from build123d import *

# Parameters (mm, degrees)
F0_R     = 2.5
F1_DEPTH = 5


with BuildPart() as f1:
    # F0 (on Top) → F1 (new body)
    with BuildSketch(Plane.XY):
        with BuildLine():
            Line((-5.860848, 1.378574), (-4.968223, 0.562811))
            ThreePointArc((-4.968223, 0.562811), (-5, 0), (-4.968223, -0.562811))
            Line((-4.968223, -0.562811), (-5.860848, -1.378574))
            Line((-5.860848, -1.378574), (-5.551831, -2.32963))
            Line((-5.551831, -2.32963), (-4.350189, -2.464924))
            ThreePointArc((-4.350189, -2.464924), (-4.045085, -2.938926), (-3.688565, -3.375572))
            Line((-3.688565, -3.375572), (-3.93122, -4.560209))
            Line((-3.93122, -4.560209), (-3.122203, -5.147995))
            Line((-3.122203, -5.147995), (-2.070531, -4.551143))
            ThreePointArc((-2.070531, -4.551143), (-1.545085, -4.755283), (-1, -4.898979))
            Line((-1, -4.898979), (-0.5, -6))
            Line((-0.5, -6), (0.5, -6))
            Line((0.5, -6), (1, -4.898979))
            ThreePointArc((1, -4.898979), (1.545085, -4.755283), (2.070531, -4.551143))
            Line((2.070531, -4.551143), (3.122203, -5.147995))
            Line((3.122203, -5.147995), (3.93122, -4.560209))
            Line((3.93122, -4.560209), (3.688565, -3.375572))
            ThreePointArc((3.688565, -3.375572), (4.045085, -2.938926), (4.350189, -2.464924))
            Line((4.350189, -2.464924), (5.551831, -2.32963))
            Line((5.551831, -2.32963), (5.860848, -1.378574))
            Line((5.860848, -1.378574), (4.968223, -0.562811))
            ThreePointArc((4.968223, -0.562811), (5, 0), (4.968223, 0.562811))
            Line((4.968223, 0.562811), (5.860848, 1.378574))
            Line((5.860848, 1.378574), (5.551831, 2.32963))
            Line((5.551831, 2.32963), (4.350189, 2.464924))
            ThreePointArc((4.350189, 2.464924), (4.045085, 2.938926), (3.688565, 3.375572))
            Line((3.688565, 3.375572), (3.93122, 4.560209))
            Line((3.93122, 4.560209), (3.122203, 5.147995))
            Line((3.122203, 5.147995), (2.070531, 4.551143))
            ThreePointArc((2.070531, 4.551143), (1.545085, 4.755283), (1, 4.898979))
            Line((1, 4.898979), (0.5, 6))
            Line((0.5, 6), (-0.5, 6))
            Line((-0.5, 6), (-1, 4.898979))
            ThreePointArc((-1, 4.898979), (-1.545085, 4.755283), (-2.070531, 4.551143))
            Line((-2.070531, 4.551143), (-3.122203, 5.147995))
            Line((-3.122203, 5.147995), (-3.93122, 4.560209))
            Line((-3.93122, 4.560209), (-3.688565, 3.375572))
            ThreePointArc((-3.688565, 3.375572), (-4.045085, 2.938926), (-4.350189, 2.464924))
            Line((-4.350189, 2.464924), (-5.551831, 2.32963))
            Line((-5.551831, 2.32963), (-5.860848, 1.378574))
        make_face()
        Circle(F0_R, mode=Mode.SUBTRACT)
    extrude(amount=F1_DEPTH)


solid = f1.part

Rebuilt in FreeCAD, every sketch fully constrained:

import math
import FreeCAD as App
import Part
import Sketcher

V = App.Vector
Q = App.Units.Quantity

doc = App.newDocument("Part")
body = doc.addObject("PartDesign::Body", "Body")

# Sketch on XY plane
sketch1 = doc.addObject("Sketcher::SketchObject", "Sketch")
body.addObject(sketch1)
sketch1.AttachmentSupport = (doc.XY_Plane, [""])
sketch1.MapMode = "FlatFace"
sketch1.addGeometry(Part.LineSegment(V(-5.860848, 1.378574, 0), V(-4.968223, 0.562811, 0)), False)
sketch1.addGeometry(Part.ArcOfCircle(Part.Circle(V(-0.000063, 0, 0), V(0, 0, 1), 4.999937), math.radians(173.536882), math.radians(186.463118)), False)
sketch1.addGeometry(Part.LineSegment(V(-4.968223, -0.562811, 0), V(-5.860848, -1.378574, 0)), False)
sketch1.addGeometry(Part.LineSegment(V(-5.860848, -1.378574, 0), V(-5.551831, -2.32963, 0)), False)
sketch1.addGeometry(Part.LineSegment(V(-5.551831, -2.32963, 0), V(-4.350189, -2.464924, 0)), False)
sketch1.addGeometry(Part.ArcOfCircle(Part.Circle(V(-0.000029, -0.000023, 0), V(0, 0, 1), 4.999963), math.radians(-150.463108), math.radians(-137.536934)), False)
sketch1.addGeometry(Part.LineSegment(V(-3.688565, -3.375572, 0), V(-3.93122, -4.560209, 0)), False)
sketch1.addGeometry(Part.LineSegment(V(-3.93122, -4.560209, 0), V(-3.122203, -5.147995, 0)), False)
sketch1.addGeometry(Part.LineSegment(V(-3.122203, -5.147995, 0), V(-2.070531, -4.551143, 0)), False)
sketch1.addGeometry(Part.ArcOfCircle(Part.Circle(V(-0.000031, -0.000086, 0), V(0, 0, 1), 4.999909), math.radians(-114.46313), math.radians(-101.536812)), False)
sketch1.addGeometry(Part.LineSegment(V(-1, -4.898979, 0), V(-0.5, -6, 0)), False)
sketch1.addGeometry(Part.LineSegment(V(-0.5, -6, 0), V(0.5, -6, 0)), False)
sketch1.addGeometry(Part.LineSegment(V(0.5, -6, 0), V(1, -4.898979, 0)), False)
sketch1.addGeometry(Part.ArcOfCircle(Part.Circle(V(0.000031, -0.000086, 0), V(0, 0, 1), 4.999909), math.radians(-78.463188), math.radians(-65.53687)), False)
sketch1.addGeometry(Part.LineSegment(V(2.070531, -4.551143, 0), V(3.122203, -5.147995, 0)), False)
sketch1.addGeometry(Part.LineSegment(V(3.122203, -5.147995, 0), V(3.93122, -4.560209, 0)), False)
sketch1.addGeometry(Part.LineSegment(V(3.93122, -4.560209, 0), V(3.688565, -3.375572, 0)), False)
sketch1.addGeometry(Part.ArcOfCircle(Part.Circle(V(0.000029, -0.000023, 0), V(0, 0, 1), 4.999963), math.radians(-42.463066), math.radians(-29.536892)), False)
sketch1.addGeometry(Part.LineSegment(V(4.350189, -2.464924, 0), V(5.551831, -2.32963, 0)), False)
sketch1.addGeometry(Part.LineSegment(V(5.551831, -2.32963, 0), V(5.860848, -1.378574, 0)), False)
sketch1.addGeometry(Part.LineSegment(V(5.860848, -1.378574, 0), V(4.968223, -0.562811, 0)), False)
sketch1.addGeometry(Part.ArcOfCircle(Part.Circle(V(0.000063, 0, 0), V(0, 0, 1), 4.999937), math.radians(-6.463118), math.radians(6.463118)), False)
sketch1.addGeometry(Part.LineSegment(V(4.968223, 0.562811, 0), V(5.860848, 1.378574, 0)), False)
sketch1.addGeometry(Part.LineSegment(V(5.860848, 1.378574, 0), V(5.551831, 2.32963, 0)), False)
sketch1.addGeometry(Part.LineSegment(V(5.551831, 2.32963, 0), V(4.350189, 2.464924, 0)), False)
sketch1.addGeometry(Part.ArcOfCircle(Part.Circle(V(0.000029, 0.000023, 0), V(0, 0, 1), 4.999963), math.radians(29.536892), math.radians(42.463066)), False)
sketch1.addGeometry(Part.LineSegment(V(3.688565, 3.375572, 0), V(3.93122, 4.560209, 0)), False)
sketch1.addGeometry(Part.LineSegment(V(3.93122, 4.560209, 0), V(3.122203, 5.147995, 0)), False)
sketch1.addGeometry(Part.LineSegment(V(3.122203, 5.147995, 0), V(2.070531, 4.551143, 0)), False)
sketch1.addGeometry(Part.ArcOfCircle(Part.Circle(V(0.000031, 0.000086, 0), V(0, 0, 1), 4.999909), math.radians(65.53687), math.radians(78.463188)), False)
sketch1.addGeometry(Part.LineSegment(V(1, 4.898979, 0), V(0.5, 6, 0)), False)
sketch1.addGeometry(Part.LineSegment(V(0.5, 6, 0), V(-0.5, 6, 0)), False)
sketch1.addGeometry(Part.LineSegment(V(-0.5, 6, 0), V(-1, 4.898979, 0)), False)
sketch1.addGeometry(Part.ArcOfCircle(Part.Circle(V(-0.000031, 0.000086, 0), V(0, 0, 1), 4.999909), math.radians(101.536812), math.radians(114.46313)), False)
sketch1.addGeometry(Part.LineSegment(V(-2.070531, 4.551143, 0), V(-3.122203, 5.147995, 0)), False)
sketch1.addGeometry(Part.LineSegment(V(-3.122203, 5.147995, 0), V(-3.93122, 4.560209, 0)), False)
sketch1.addGeometry(Part.LineSegment(V(-3.93122, 4.560209, 0), V(-3.688565, 3.375572, 0)), False)
sketch1.addGeometry(Part.ArcOfCircle(Part.Circle(V(-0.000029, 0.000023, 0), V(0, 0, 1), 4.999963), math.radians(137.536934), math.radians(150.463108)), False)
sketch1.addGeometry(Part.LineSegment(V(-4.350189, 2.464924, 0), V(-5.551831, 2.32963, 0)), False)
sketch1.addGeometry(Part.LineSegment(V(-5.551831, 2.32963, 0), V(-5.860848, 1.378574, 0)), False)
sketch1.addGeometry(Part.Circle(V(0, 0, 0), V(0, 0, 1), 2.5), False)
sketch1.addConstraint(Sketcher.Constraint("Coincident", 0, 2, 1, 1))
sketch1.addConstraint(Sketcher.Constraint("Coincident", 1, 2, 2, 1))
sketch1.addConstraint(Sketcher.Constraint("Coincident", 2, 2, 3, 1))
sketch1.addConstraint(Sketcher.Constraint("Coincident", 3, 2, 4, 1))
sketch1.addConstraint(Sketcher.Constraint("Coincident", 4, 2, 5, 1))
sketch1.addConstraint(Sketcher.Constraint("Coincident", 5, 2, 6, 1))
sketch1.addConstraint(Sketcher.Constraint("Coincident", 6, 2, 7, 1))
sketch1.addConstraint(Sketcher.Constraint("Coincident", 7, 2, 8, 1))
sketch1.addConstraint(Sketcher.Constraint("Coincident", 8, 2, 9, 1))
sketch1.addConstraint(Sketcher.Constraint("Coincident", 9, 2, 10, 1))
sketch1.addConstraint(Sketcher.Constraint("Coincident", 10, 2, 11, 1))
sketch1.addConstraint(Sketcher.Constraint("Coincident", 11, 2, 12, 1))
sketch1.addConstraint(Sketcher.Constraint("Coincident", 12, 2, 13, 1))
sketch1.addConstraint(Sketcher.Constraint("Coincident", 13, 2, 14, 1))
sketch1.addConstraint(Sketcher.Constraint("Coincident", 14, 2, 15, 1))
sketch1.addConstraint(Sketcher.Constraint("Coincident", 15, 2, 16, 1))
sketch1.addConstraint(Sketcher.Constraint("Coincident", 16, 2, 17, 1))
sketch1.addConstraint(Sketcher.Constraint("Coincident", 17, 2, 18, 1))
sketch1.addConstraint(Sketcher.Constraint("Coincident", 18, 2, 19, 1))
sketch1.addConstraint(Sketcher.Constraint("Coincident", 19, 2, 20, 1))
sketch1.addConstraint(Sketcher.Constraint("Coincident", 20, 2, 21, 1))
sketch1.addConstraint(Sketcher.Constraint("Coincident", 21, 2, 22, 1))
sketch1.addConstraint(Sketcher.Constraint("Coincident", 22, 2, 23, 1))
sketch1.addConstraint(Sketcher.Constraint("Coincident", 23, 2, 24, 1))
sketch1.addConstraint(Sketcher.Constraint("Coincident", 24, 2, 25, 1))
sketch1.addConstraint(Sketcher.Constraint("Coincident", 25, 2, 26, 1))
sketch1.addConstraint(Sketcher.Constraint("Coincident", 26, 2, 27, 1))
sketch1.addConstraint(Sketcher.Constraint("Coincident", 27, 2, 28, 1))
sketch1.addConstraint(Sketcher.Constraint("Coincident", 28, 2, 29, 1))
sketch1.addConstraint(Sketcher.Constraint("Coincident", 29, 2, 30, 1))
sketch1.addConstraint(Sketcher.Constraint("Coincident", 30, 2, 31, 1))
sketch1.addConstraint(Sketcher.Constraint("Coincident", 31, 2, 32, 1))
sketch1.addConstraint(Sketcher.Constraint("Coincident", 32, 2, 33, 1))
sketch1.addConstraint(Sketcher.Constraint("Coincident", 33, 2, 34, 1))
sketch1.addConstraint(Sketcher.Constraint("Coincident", 34, 2, 35, 1))
sketch1.addConstraint(Sketcher.Constraint("Coincident", 35, 2, 36, 1))
sketch1.addConstraint(Sketcher.Constraint("Coincident", 36, 2, 37, 1))
sketch1.addConstraint(Sketcher.Constraint("Coincident", 37, 2, 38, 1))
sketch1.addConstraint(Sketcher.Constraint("Coincident", 38, 2, 39, 1))
sketch1.addConstraint(Sketcher.Constraint("Coincident", 39, 2, 0, 1))
sketch1.addConstraint(Sketcher.Constraint("Horizontal", 11))
sketch1.addConstraint(Sketcher.Constraint("Horizontal", 31))
sketch1.addConstraint(Sketcher.Constraint("Coincident", 40, 3, -1, 1))
sketch1.addConstraint(Sketcher.Constraint("Equal", 9, 13))
sketch1.addConstraint(Sketcher.Constraint("Equal", 5, 17))
sketch1.addConstraint(Sketcher.Constraint("Equal", 1, 21))
sketch1.addConstraint(Sketcher.Constraint("Equal", 17, 25))
sketch1.addConstraint(Sketcher.Constraint("Equal", 13, 29))
sketch1.addConstraint(Sketcher.Constraint("Equal", 29, 33))
sketch1.addConstraint(Sketcher.Constraint("Equal", 25, 37))
sketch1.addConstraint(Sketcher.Constraint("Symmetric", 1, 3, 21, 3, -1, 1))
sketch1.addConstraint(Sketcher.Constraint("Symmetric", 5, 3, 25, 3, -1, 1))
sketch1.addConstraint(Sketcher.Constraint("Symmetric", 9, 3, 29, 3, -1, 1))
sketch1.addConstraint(Sketcher.Constraint("Symmetric", 13, 3, 33, 3, -1, 1))
sketch1.addConstraint(Sketcher.Constraint("Symmetric", 17, 3, 37, 3, -1, 1))
sketch1.addConstraint(Sketcher.Constraint("Symmetric", 2, 2, 22, 2, -1, 1))
sketch1.addConstraint(Sketcher.Constraint("Symmetric", 3, 2, 23, 2, -1, 1))
sketch1.addConstraint(Sketcher.Constraint("Symmetric", 6, 2, 26, 2, -1, 1))
sketch1.addConstraint(Sketcher.Constraint("Symmetric", 7, 2, 27, 2, -1, 1))
sketch1.addConstraint(Sketcher.Constraint("Symmetric", 10, 2, 30, 2, -1, 1))
sketch1.addConstraint(Sketcher.Constraint("Symmetric", 14, 2, 34, 2, -1, 1))
sketch1.addConstraint(Sketcher.Constraint("Symmetric", 15, 2, 35, 2, -1, 1))
sketch1.addConstraint(Sketcher.Constraint("Symmetric", 18, 2, 38, 2, -1, 1))
sketch1.addConstraint(Sketcher.Constraint("Symmetric", 19, 2, 39, 2, -1, 1))
sketch1.addConstraint(Sketcher.Constraint("Symmetric", 9, 3, 13, 3, -2))
sketch1.addConstraint(Sketcher.Constraint("Symmetric", 5, 3, 17, 3, -2))
sketch1.addConstraint(Sketcher.Constraint("Symmetric", 7, 2, 14, 2, -2))
sketch1.addConstraint(Sketcher.Constraint("Symmetric", 6, 2, 15, 2, -2))
sketch1.addConstraint(Sketcher.Constraint("Symmetric", 3, 2, 18, 2, -2))
sketch1.addConstraint(Sketcher.Constraint("Symmetric", 2, 2, 19, 2, -2))
sketch1.addConstraint(Sketcher.Constraint("Symmetric", 1, 2, 20, 2, -2))
sketch1.addConstraint(Sketcher.Constraint("Parallel", 0, 20))
sketch1.addConstraint(Sketcher.Constraint("Parallel", 2, 22))
sketch1.addConstraint(Sketcher.Constraint("Parallel", 4, 24))
sketch1.addConstraint(Sketcher.Constraint("Parallel", 6, 26))
sketch1.addConstraint(Sketcher.Constraint("Parallel", 8, 28))
sketch1.addConstraint(Sketcher.Constraint("Parallel", 10, 30))
sketch1.addConstraint(Sketcher.Constraint("Parallel", 12, 32))
sketch1.addConstraint(Sketcher.Constraint("Parallel", 14, 34))
sketch1.addConstraint(Sketcher.Constraint("Parallel", 16, 36))
sketch1.addConstraint(Sketcher.Constraint("Parallel", 18, 38))
sketch1.addConstraint(Sketcher.Constraint("Horizontal", 9, 2, 12, 2))
sketch1.addConstraint(Sketcher.Constraint("Horizontal", 8, 2, 13, 2))
sketch1.addConstraint(Sketcher.Constraint("Horizontal", 5, 2, 16, 2))
sketch1.addConstraint(Sketcher.Constraint("Horizontal", 4, 2, 17, 2))
sketch1.addConstraint(Sketcher.Constraint("Horizontal", 29, 2, 32, 2))
sketch1.addConstraint(Sketcher.Constraint("Vertical", 11, 2, 30, 2))
sketch1.addConstraint(Sketcher.Constraint("Equal", 2, 4))
sketch1.addConstraint(Sketcher.Constraint("Equal", 4, 6))
sketch1.addConstraint(Sketcher.Constraint("Equal", 3, 7))
sketch1.addConstraint(Sketcher.Constraint("Equal", 6, 8))
sketch1.addConstraint(Sketcher.Constraint("Equal", 8, 10))
sketch1.addConstraint(Sketcher.Constraint("Diameter", 40, Q("5 mm")))
sketch1.addConstraint(Sketcher.Constraint("DistanceX", 11, 1, 11, 2, Q("1 mm")))
sketch1.addConstraint(Sketcher.Constraint("Angle", 3, Q("-71.999991 deg")))
sketch1.addConstraint(Sketcher.Constraint("Distance", 3, Q("1 mm")))
sketch1.addConstraint(Sketcher.Constraint("DistanceX", 9, 2, -1, 1, Q("1 mm")))
sketch1.addConstraint(Sketcher.Constraint("DistanceY", 10, 2, -1, 1, Q("6 mm")))
sketch1.addConstraint(Sketcher.Constraint("Radius", 9, Q("4.999909 mm")))
sketch1.addConstraint(Sketcher.Constraint("Radius", 1, Q("4.999937 mm")))
sketch1.addConstraint(Sketcher.Constraint("Radius", 5, Q("4.999963 mm")))
sketch1.addConstraint(Sketcher.Constraint("DistanceY", 5, 2, 2, 2, Q("1.996998 mm")))
sketch1.addConstraint(Sketcher.Constraint("DistanceX", 3, 2, 9, 3, Q("5.5518 mm")))
sketch1.addConstraint(Sketcher.Constraint("DistanceX", 3, 2, 8, 2, Q("3.4813 mm")))
sketch1.addConstraint(Sketcher.Constraint("DistanceY", 15, 2, 20, 2, Q("3.997398 mm")))
sketch1.addConstraint(Sketcher.Constraint("DistanceY", 17, 2, 22, 2, Q("3.843498 mm")))
sketch1.addConstraint(Sketcher.Constraint("DistanceY", -1, 1, 0, 2, Q("0.562811 mm")))
sketch1.addConstraint(Sketcher.Constraint("DistanceX", 3, 2, -1, 1, Q("5.551831 mm")))
sketch1.addConstraint(Sketcher.Constraint("DistanceY", 3, 2, -1, 1, Q("2.32963 mm")))
sketch1.addConstraint(Sketcher.Constraint("DistanceX", 4, 2, -1, 1, Q("4.350189 mm")))
sketch1.addConstraint(Sketcher.Constraint("DistanceX", 6, 2, -1, 1, Q("3.93122 mm")))
pad1 = doc.addObject("PartDesign::Pad", "Pad")
body.addObject(pad1)
pad1.Profile = sketch1
pad1.Length = 5

doc.recompute()
